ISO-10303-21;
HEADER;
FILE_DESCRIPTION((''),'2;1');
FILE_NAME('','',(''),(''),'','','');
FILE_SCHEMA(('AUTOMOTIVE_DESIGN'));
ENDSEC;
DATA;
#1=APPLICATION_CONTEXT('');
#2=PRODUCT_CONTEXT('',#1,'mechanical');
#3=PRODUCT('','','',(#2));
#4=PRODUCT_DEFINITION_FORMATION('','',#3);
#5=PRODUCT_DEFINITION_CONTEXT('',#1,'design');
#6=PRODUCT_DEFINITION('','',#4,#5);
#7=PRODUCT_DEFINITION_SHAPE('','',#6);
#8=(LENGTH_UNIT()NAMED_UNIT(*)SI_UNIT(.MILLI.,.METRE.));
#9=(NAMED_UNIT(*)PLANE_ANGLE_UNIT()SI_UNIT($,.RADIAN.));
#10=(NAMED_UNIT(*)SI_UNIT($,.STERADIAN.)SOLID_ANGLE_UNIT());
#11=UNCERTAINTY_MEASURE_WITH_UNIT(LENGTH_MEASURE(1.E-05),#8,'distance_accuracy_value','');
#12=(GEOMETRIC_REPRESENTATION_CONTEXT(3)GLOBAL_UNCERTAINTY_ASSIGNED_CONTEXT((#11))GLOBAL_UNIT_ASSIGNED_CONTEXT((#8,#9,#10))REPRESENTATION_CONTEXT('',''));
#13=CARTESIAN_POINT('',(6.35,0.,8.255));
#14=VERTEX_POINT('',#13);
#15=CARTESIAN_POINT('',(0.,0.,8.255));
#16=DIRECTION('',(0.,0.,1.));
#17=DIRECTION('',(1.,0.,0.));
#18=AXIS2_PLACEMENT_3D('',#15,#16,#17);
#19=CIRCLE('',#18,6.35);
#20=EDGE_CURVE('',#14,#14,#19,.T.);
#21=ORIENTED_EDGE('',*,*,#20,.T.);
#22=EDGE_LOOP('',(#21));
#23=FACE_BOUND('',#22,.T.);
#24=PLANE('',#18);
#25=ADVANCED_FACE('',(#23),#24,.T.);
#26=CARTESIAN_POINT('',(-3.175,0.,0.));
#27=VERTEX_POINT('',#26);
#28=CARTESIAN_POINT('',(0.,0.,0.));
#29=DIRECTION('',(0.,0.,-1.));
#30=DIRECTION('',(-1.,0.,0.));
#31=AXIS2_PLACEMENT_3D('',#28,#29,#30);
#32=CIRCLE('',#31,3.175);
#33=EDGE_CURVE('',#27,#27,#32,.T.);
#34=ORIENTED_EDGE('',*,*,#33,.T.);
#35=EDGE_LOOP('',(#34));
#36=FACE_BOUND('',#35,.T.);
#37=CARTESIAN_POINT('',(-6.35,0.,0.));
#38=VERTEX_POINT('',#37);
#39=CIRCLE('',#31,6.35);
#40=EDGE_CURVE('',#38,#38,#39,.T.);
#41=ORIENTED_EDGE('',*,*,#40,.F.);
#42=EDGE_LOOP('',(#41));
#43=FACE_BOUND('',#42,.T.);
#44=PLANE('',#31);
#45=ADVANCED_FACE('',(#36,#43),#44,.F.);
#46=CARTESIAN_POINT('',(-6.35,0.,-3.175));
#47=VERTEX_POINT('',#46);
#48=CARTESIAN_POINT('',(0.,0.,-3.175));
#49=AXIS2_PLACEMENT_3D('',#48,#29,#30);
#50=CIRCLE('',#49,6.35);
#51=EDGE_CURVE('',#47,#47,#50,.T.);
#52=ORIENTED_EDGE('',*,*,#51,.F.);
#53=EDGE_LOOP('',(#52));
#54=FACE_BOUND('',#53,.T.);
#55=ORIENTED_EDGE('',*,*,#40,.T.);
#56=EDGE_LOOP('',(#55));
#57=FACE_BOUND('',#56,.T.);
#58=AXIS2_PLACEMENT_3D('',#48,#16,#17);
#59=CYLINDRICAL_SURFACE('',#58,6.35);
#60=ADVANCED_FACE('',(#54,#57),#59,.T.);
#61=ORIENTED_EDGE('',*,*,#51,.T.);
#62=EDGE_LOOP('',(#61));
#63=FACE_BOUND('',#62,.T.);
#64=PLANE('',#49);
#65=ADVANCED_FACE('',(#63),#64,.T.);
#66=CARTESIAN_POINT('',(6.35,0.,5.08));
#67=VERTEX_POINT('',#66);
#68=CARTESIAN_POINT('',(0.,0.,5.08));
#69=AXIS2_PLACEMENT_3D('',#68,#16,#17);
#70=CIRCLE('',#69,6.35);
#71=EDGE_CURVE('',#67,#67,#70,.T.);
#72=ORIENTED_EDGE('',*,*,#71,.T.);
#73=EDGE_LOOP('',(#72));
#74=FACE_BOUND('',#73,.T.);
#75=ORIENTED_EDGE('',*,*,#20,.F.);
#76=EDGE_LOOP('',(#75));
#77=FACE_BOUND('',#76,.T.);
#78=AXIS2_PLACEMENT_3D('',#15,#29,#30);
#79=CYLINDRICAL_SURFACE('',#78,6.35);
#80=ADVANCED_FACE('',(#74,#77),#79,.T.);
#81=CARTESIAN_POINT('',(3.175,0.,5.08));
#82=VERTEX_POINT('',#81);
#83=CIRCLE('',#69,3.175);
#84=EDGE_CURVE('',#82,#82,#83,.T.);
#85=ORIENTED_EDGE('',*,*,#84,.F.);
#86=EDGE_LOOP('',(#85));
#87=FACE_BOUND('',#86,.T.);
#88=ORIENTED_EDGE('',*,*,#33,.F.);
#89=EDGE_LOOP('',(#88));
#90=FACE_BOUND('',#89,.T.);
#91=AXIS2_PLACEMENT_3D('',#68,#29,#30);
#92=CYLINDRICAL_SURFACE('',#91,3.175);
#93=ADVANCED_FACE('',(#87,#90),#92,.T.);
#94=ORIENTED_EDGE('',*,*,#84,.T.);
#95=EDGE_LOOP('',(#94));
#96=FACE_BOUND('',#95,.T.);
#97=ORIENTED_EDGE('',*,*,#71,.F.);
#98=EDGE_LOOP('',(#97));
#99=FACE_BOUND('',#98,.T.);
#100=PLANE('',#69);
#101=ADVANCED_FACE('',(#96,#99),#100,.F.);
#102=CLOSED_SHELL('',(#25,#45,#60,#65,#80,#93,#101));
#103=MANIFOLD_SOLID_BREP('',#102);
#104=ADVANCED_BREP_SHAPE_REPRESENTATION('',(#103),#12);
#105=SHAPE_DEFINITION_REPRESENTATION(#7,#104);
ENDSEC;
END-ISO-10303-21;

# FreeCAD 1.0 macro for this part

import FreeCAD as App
import Part
import Sketcher
Q = App.Units.Quantity

doc = App.newDocument("Part")
body = doc.addObject("PartDesign::Body", "Body")

# Sketch on XY plane
sketch1 = body.newObject("Sketcher::SketchObject", "Sketch")
sketch1.AttachmentSupport = (doc.getObject("XY_Plane"), [""])
sketch1.MapMode = "FlatFace"
sketch1.addGeometry(Part.Circle(App.Vector(0, 0, 0), App.Vector(0, 0, 1), 3.2), False)
sketch1.addConstraint([
    Sketcher.Constraint("Coincident", 0, 3, -1, 1),
    Sketcher.Constraint("Diameter", 0, Q("0.25 in")),
])
pad1 = body.newObject("PartDesign::Pad", "Pad")
pad1.Profile = sketch1
pad1.Length = Q("0.2 in")

# Sketch on XY plane
sketch2 = body.newObject("Sketcher::SketchObject", "Sketch001")
sketch2.AttachmentSupport = (doc.getObject("XY_Plane"), [""])
sketch2.MapMode = "FlatFace"
sketch2.addGeometry(Part.Circle(App.Vector(0, 0, 0), App.Vector(0, 0, 1), 6), False)
sketch2.addConstraint([
    Sketcher.Constraint("Coincident", 0, 3, -1, 1),
    Sketcher.Constraint("Diameter", 0, Q("0.5 in")),
])
pad2 = body.newObject("PartDesign::Pad", "Pad001")
pad2.Profile = sketch2
pad2.Length = Q("0.125 in")
pad2.Reversed = True

# Sketch on XY plane
sketch3 = body.newObject("Sketcher::SketchObject", "Sketch002")
sketch3.AttachmentSupport = (doc.getObject("XY_Plane"), [""])
sketch3.MapMode = "FlatFace"
sketch3.AttachmentOffset = App.Placement(App.Vector(0, 0, 0.2 * 25.4), App.Rotation())
sketch3.addGeometry(Part.Circle(App.Vector(0, 0, 0), App.Vector(0, 0, 1), 6), False)
sketch3.addConstraint([
    Sketcher.Constraint("Coincident", 0, 3, -1, 1),
    Sketcher.Constraint("Diameter", 0, Q("0.5 in")),
])
pad3 = body.newObject("PartDesign::Pad", "Pad002")
pad3.Profile = sketch3
pad3.Length = Q("0.125 in")

doc.recompute()
